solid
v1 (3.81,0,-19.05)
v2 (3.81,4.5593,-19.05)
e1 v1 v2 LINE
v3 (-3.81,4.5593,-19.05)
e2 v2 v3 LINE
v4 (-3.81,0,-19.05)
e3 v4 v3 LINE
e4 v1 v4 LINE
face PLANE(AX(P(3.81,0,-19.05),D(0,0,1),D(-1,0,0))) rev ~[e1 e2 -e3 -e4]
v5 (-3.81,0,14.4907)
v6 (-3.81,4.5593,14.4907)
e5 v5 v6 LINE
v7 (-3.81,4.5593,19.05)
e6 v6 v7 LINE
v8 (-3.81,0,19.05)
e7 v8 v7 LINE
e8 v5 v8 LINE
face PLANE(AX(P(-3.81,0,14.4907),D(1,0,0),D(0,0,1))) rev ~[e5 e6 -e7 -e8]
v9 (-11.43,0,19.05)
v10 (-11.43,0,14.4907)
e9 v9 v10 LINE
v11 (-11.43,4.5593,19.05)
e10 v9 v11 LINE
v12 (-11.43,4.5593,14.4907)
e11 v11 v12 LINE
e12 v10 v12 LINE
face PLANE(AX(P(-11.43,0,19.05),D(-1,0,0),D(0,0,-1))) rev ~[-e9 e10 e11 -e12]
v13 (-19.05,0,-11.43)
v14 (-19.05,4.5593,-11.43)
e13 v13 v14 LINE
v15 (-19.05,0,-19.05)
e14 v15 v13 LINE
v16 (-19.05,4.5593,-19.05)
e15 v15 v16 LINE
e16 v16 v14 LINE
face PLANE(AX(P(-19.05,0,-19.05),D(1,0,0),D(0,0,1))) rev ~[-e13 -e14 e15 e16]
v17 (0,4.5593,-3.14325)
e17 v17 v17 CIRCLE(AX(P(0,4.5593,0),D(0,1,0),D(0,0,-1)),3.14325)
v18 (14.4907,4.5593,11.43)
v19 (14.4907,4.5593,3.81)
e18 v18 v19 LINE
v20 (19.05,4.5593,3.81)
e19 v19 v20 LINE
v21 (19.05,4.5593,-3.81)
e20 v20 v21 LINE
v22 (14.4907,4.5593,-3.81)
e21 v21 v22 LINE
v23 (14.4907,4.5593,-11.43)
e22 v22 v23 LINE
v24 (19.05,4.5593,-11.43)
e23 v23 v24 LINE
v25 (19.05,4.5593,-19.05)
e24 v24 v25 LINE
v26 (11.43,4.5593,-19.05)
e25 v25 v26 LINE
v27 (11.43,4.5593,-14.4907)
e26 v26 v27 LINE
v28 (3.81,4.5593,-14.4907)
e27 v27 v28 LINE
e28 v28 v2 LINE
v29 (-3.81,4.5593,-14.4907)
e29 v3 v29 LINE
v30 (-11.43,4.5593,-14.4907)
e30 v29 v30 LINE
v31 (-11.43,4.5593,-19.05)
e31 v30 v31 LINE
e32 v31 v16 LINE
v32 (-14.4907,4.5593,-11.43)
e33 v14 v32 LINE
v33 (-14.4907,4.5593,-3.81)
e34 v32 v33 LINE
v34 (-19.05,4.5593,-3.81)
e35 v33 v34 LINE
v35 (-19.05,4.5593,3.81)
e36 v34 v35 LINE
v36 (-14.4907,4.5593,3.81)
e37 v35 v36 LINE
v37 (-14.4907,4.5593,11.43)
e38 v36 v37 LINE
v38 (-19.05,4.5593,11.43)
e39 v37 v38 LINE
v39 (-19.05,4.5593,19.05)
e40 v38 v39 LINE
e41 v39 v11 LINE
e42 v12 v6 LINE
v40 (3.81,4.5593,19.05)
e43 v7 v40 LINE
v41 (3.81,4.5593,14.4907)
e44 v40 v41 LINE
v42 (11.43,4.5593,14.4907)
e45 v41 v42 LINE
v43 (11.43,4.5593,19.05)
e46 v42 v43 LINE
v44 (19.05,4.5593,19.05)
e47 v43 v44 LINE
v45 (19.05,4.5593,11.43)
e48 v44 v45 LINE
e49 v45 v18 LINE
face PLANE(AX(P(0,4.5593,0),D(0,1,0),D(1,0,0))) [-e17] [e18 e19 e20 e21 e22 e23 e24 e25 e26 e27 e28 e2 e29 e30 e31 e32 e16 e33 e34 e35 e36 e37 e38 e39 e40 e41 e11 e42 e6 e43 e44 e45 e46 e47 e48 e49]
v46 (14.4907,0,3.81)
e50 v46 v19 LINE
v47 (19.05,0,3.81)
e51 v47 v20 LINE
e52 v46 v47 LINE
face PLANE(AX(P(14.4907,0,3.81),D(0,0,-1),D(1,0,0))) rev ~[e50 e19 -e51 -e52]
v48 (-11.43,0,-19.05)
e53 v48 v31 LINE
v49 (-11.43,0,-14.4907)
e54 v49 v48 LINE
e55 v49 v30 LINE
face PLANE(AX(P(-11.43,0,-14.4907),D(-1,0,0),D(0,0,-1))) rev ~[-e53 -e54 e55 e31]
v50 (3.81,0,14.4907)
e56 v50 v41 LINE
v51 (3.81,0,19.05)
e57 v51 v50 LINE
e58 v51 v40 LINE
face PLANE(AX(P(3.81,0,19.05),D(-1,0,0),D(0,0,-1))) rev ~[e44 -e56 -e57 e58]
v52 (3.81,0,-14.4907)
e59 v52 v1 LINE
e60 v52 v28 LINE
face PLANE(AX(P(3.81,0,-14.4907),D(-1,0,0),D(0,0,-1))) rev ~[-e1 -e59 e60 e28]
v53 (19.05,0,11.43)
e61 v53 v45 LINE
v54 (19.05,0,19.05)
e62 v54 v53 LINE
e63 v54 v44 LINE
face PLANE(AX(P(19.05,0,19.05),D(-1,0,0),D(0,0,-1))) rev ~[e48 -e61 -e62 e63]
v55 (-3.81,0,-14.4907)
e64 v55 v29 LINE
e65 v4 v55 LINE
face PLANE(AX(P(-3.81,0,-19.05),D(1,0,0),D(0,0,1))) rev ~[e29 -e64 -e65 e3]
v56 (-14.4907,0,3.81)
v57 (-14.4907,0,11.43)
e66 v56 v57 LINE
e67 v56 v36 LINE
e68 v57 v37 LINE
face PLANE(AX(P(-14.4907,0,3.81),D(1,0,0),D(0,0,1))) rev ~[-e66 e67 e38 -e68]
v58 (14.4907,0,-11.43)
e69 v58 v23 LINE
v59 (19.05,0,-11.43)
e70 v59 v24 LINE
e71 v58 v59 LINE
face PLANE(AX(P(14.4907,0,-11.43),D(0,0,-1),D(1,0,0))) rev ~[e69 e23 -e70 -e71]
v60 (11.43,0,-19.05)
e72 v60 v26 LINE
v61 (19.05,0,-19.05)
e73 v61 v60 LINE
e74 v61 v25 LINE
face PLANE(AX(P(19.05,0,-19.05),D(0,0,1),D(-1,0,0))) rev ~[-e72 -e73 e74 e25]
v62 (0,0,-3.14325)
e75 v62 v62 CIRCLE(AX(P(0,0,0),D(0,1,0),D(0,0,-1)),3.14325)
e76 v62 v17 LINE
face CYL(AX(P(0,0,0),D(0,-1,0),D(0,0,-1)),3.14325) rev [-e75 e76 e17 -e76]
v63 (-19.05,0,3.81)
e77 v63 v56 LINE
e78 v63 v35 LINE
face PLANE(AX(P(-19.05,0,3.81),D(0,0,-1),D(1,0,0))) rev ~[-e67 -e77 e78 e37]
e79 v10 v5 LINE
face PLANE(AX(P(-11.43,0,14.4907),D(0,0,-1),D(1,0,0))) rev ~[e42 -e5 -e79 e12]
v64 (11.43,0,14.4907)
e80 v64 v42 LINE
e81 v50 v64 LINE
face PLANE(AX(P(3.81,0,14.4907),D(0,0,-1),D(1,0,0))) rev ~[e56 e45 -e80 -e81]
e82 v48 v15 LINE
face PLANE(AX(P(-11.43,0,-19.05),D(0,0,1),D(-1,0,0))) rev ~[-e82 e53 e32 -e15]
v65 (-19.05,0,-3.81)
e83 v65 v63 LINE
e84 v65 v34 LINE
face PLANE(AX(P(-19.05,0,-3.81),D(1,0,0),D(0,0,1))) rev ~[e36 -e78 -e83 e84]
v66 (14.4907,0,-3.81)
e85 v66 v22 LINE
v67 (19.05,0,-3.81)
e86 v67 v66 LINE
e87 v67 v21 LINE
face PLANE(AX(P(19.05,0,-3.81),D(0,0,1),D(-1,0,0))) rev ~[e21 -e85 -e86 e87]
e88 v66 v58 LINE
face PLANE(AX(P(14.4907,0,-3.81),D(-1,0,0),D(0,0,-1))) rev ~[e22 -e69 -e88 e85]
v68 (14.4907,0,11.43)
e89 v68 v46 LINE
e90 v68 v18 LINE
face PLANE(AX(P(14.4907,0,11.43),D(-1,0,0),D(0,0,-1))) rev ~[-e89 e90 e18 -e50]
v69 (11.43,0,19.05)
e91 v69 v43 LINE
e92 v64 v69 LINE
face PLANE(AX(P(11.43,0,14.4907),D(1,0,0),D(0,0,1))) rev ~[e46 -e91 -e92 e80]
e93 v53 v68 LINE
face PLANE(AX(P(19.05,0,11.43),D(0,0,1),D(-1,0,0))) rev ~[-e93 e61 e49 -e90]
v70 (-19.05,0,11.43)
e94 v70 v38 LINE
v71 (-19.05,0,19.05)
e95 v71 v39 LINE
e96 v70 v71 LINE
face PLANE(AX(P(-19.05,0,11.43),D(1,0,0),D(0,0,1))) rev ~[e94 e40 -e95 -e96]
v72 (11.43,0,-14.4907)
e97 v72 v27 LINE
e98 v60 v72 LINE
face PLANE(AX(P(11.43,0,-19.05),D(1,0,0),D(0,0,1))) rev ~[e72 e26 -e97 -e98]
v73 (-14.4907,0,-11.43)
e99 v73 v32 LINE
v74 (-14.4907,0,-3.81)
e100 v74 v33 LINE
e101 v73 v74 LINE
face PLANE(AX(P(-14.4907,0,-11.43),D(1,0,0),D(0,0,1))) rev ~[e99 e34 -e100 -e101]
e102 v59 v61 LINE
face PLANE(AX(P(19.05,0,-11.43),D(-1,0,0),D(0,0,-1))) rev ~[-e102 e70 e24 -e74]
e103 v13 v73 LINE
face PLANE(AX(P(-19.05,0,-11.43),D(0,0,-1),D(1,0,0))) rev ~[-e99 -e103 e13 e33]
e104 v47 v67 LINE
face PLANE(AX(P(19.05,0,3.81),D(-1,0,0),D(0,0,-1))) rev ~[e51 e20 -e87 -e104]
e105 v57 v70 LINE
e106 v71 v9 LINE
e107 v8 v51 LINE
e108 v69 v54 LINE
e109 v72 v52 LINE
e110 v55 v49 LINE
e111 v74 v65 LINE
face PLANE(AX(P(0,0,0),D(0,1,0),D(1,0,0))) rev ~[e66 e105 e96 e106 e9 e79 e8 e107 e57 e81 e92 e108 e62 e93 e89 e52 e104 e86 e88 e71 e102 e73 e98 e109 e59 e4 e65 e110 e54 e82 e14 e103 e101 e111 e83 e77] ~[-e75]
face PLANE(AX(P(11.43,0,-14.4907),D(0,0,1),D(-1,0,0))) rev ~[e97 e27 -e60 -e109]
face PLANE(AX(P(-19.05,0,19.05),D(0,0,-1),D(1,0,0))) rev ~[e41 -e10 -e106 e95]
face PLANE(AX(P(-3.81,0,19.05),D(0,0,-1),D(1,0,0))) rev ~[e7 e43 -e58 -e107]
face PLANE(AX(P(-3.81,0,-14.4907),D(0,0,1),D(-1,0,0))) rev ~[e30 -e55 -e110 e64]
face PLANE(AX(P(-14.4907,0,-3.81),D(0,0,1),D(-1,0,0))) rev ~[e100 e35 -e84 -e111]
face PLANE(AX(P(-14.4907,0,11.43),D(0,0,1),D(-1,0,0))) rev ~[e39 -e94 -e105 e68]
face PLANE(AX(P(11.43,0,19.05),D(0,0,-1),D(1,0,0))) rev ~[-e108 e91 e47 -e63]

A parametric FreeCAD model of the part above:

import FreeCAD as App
import Part
import Sketcher
Q = App.Units.Quantity


def add_polygon(sketch, points):
    """Adds a closed chain of lines whose ends are joined by coincident constraints."""
    first, n = sketch.GeometryCount, len(points)
    for a, b in zip(points, points[1:] + points[:1]):
        sketch.addGeometry(Part.LineSegment(App.Vector(*a, 0), App.Vector(*b, 0)), False)
    for i in range(n):
        sketch.addConstraint(Sketcher.Constraint("Coincident", first + i, 2, first + (i + 1) % n, 1))

doc = App.newDocument("Part")
params = doc.addObject("Spreadsheet::Sheet", "Params")
for row, (alias, value) in enumerate([
    ("sketch1_width", "0.3 in"),
    ("pad1_length", "0.1795 in"),
], start=1):
    params.set(f"A{row}", alias)
    params.set(f"B{row}", "=" + value)
    params.setAlias(f"B{row}", alias)

body = doc.addObject("PartDesign::Body", "Body")

# Sketch on XZ plane
sketch1 = body.newObject("Sketcher::SketchObject", "Sketch")
sketch1.AttachmentSupport = (doc.getObject("XZ_Plane"), [""])
sketch1.MapMode = "FlatFace"
add_polygon(sketch1, [(-11.4, -19.1), (-19.1, -19.1), (-19.1, -11.4), (-14.5, -11.4), (-14.5, -3.8), (-19.1, -3.8), (-19.1, 3.8), (-14.5, 3.8), (-14.5, 11.4), (-19.1, 11.4), (-19.1, 19.1), (-11.4, 19.1), (-11.4, 14.5), (-3.8, 14.5), (-3.8, 19.1), (3.8, 19.1), (3.8, 14.5), (11.4, 14.5), (11.4, 19.1), (19.1, 19.1), (19.1, 11.4), (14.5, 11.4), (14.5, 3.8), (19.1, 3.8), (19.1, -3.8), (14.5, -3.8), (14.5, -11.4), (19.1, -11.4), (19.1, -19.1), (11.4, -19.1), (11.4, -14.5), (3.8, -14.5), (3.8, -19.1), (-3.8, -19.1), (-3.8, -14.5), (-11.4, -14.5)])  # lines 0-35
sketch1.addGeometry(Part.Circle(App.Vector(0, 0, 0), App.Vector(0, 0, 1), 3.1), False)  # 36
sketch1.addConstraint(Sketcher.Constraint("Horizontal", 0))
sketch1.addConstraint(Sketcher.Constraint("Vertical", 1))
sketch1.addConstraint(Sketcher.Constraint("Horizontal", 2))
sketch1.addConstraint(Sketcher.Constraint("Vertical", 3))
sketch1.addConstraint(Sketcher.Constraint("Horizontal", 4))
sketch1.addConstraint(Sketcher.Constraint("Vertical", 5))
sketch1.addConstraint(Sketcher.Constraint("Horizontal", 6))
sketch1.addConstraint(Sketcher.Constraint("Vertical", 7))
sketch1.addConstraint(Sketcher.Constraint("Horizontal", 8))
sketch1.addConstraint(Sketcher.Constraint("Vertical", 9))
sketch1.addConstraint(Sketcher.Constraint("Horizontal", 10))
sketch1.addConstraint(Sketcher.Constraint("Vertical", 11))
sketch1.addConstraint(Sketcher.Constraint("Horizontal", 12))
sketch1.addConstraint(Sketcher.Constraint("Vertical", 13))
sketch1.addConstraint(Sketcher.Constraint("Horizontal", 14))
sketch1.addConstraint(Sketcher.Constraint("Vertical", 15))
sketch1.addConstraint(Sketcher.Constraint("Horizontal", 16))
sketch1.addConstraint(Sketcher.Constraint("Vertical", 17))
sketch1.addConstraint(Sketcher.Constraint("Horizontal", 18))
sketch1.addConstraint(Sketcher.Constraint("Vertical", 19))
sketch1.addConstraint(Sketcher.Constraint("Horizontal", 20))
sketch1.addConstraint(Sketcher.Constraint("Vertical", 21))
sketch1.addConstraint(Sketcher.Constraint("Horizontal", 22))
sketch1.addConstraint(Sketcher.Constraint("Vertical", 23))
sketch1.addConstraint(Sketcher.Constraint("Horizontal", 24))
sketch1.addConstraint(Sketcher.Constraint("Vertical", 25))
sketch1.addConstraint(Sketcher.Constraint("Horizontal", 26))
sketch1.addConstraint(Sketcher.Constraint("Vertical", 27))
sketch1.addConstraint(Sketcher.Constraint("Horizontal", 28))
sketch1.addConstraint(Sketcher.Constraint("Vertical", 29))
sketch1.addConstraint(Sketcher.Constraint("Horizontal", 30))
sketch1.addConstraint(Sketcher.Constraint("Vertical", 31))
sketch1.addConstraint(Sketcher.Constraint("Horizontal", 32))
sketch1.addConstraint(Sketcher.Constraint("Vertical", 33))
sketch1.addConstraint(Sketcher.Constraint("Horizontal", 34))
sketch1.addConstraint(Sketcher.Constraint("Vertical", 35))
sketch1.addConstraint(Sketcher.Constraint("Coincident", 36, 3, -1, 1))
sketch1.addConstraint(Sketcher.Constraint("Symmetric", 0, 2, 18, 2, -1, 1))
sketch1.addConstraint(Sketcher.Constraint("Symmetric", 2, 2, 20, 2, -1, 1))
sketch1.addConstraint(Sketcher.Constraint("Symmetric", 4, 2, 22, 2, -1, 1))
sketch1.addConstraint(Sketcher.Constraint("Symmetric", 6, 2, 24, 2, -1, 1))
sketch1.addConstraint(Sketcher.Constraint("Symmetric", 8, 2, 26, 2, -1, 1))
sketch1.addConstraint(Sketcher.Constraint("Symmetric", 10, 2, 28, 2, -1, 1))
sketch1.addConstraint(Sketcher.Constraint("Symmetric", 12, 2, 30, 2, -1, 1))
sketch1.addConstraint(Sketcher.Constraint("Symmetric", 14, 2, 32, 2, -1, 1))
sketch1.addConstraint(Sketcher.Constraint("Symmetric", 16, 2, 34, 2, -1, 1))
sketch1.addConstraint(Sketcher.Constraint("Symmetric", 12, 2, 15, 2, -2))
sketch1.addConstraint(Sketcher.Constraint("Symmetric", 10, 2, 17, 2, -2))
sketch1.addConstraint(Sketcher.Constraint("Symmetric", 8, 2, 19, 2, -2))
sketch1.addConstraint(Sketcher.Constraint("Symmetric", 6, 2, 21, 2, -2))
sketch1.addConstraint(Sketcher.Constraint("Horizontal", 10, 2, 13, 2))
sketch1.addConstraint(Sketcher.Constraint("Vertical", 1, 2, 4, 2))
sketch1.addConstraint(Sketcher.Constraint("Equal", 10, 12))
sketch1.addConstraint(Sketcher.Constraint("Equal", 12, 14))
sketch1.addConstraint(Sketcher.Constraint("Equal", 34, 1))
sketch1.addConstraint(Sketcher.Constraint("Equal", 1, 3))
sketch1.addConstraint(Sketcher.Constraint("Equal", 3, 5))
sketch1.addConstraint(Sketcher.Constraint("Equal", 26, 11))
sketch1.addConstraint(Sketcher.Constraint("DistanceX", 0, 2, 0, 1, Q("0.3 in")))
sketch1.addConstraint(Sketcher.Constraint("Diameter", 36, Q("0.2475 in")))
sketch1.addConstraint(Sketcher.Constraint("DistanceX", 2, 1, 2, 2, Q("0.1795 in")))
sketch1.setExpression("Constraints[94]", "Params.sketch1_width")
pad1 = body.newObject("PartDesign::Pad", "Pad")
pad1.Profile = sketch1
pad1.setExpression("Length", "Params.pad1_length")
pad1.Reversed = True

doc.recompute()
